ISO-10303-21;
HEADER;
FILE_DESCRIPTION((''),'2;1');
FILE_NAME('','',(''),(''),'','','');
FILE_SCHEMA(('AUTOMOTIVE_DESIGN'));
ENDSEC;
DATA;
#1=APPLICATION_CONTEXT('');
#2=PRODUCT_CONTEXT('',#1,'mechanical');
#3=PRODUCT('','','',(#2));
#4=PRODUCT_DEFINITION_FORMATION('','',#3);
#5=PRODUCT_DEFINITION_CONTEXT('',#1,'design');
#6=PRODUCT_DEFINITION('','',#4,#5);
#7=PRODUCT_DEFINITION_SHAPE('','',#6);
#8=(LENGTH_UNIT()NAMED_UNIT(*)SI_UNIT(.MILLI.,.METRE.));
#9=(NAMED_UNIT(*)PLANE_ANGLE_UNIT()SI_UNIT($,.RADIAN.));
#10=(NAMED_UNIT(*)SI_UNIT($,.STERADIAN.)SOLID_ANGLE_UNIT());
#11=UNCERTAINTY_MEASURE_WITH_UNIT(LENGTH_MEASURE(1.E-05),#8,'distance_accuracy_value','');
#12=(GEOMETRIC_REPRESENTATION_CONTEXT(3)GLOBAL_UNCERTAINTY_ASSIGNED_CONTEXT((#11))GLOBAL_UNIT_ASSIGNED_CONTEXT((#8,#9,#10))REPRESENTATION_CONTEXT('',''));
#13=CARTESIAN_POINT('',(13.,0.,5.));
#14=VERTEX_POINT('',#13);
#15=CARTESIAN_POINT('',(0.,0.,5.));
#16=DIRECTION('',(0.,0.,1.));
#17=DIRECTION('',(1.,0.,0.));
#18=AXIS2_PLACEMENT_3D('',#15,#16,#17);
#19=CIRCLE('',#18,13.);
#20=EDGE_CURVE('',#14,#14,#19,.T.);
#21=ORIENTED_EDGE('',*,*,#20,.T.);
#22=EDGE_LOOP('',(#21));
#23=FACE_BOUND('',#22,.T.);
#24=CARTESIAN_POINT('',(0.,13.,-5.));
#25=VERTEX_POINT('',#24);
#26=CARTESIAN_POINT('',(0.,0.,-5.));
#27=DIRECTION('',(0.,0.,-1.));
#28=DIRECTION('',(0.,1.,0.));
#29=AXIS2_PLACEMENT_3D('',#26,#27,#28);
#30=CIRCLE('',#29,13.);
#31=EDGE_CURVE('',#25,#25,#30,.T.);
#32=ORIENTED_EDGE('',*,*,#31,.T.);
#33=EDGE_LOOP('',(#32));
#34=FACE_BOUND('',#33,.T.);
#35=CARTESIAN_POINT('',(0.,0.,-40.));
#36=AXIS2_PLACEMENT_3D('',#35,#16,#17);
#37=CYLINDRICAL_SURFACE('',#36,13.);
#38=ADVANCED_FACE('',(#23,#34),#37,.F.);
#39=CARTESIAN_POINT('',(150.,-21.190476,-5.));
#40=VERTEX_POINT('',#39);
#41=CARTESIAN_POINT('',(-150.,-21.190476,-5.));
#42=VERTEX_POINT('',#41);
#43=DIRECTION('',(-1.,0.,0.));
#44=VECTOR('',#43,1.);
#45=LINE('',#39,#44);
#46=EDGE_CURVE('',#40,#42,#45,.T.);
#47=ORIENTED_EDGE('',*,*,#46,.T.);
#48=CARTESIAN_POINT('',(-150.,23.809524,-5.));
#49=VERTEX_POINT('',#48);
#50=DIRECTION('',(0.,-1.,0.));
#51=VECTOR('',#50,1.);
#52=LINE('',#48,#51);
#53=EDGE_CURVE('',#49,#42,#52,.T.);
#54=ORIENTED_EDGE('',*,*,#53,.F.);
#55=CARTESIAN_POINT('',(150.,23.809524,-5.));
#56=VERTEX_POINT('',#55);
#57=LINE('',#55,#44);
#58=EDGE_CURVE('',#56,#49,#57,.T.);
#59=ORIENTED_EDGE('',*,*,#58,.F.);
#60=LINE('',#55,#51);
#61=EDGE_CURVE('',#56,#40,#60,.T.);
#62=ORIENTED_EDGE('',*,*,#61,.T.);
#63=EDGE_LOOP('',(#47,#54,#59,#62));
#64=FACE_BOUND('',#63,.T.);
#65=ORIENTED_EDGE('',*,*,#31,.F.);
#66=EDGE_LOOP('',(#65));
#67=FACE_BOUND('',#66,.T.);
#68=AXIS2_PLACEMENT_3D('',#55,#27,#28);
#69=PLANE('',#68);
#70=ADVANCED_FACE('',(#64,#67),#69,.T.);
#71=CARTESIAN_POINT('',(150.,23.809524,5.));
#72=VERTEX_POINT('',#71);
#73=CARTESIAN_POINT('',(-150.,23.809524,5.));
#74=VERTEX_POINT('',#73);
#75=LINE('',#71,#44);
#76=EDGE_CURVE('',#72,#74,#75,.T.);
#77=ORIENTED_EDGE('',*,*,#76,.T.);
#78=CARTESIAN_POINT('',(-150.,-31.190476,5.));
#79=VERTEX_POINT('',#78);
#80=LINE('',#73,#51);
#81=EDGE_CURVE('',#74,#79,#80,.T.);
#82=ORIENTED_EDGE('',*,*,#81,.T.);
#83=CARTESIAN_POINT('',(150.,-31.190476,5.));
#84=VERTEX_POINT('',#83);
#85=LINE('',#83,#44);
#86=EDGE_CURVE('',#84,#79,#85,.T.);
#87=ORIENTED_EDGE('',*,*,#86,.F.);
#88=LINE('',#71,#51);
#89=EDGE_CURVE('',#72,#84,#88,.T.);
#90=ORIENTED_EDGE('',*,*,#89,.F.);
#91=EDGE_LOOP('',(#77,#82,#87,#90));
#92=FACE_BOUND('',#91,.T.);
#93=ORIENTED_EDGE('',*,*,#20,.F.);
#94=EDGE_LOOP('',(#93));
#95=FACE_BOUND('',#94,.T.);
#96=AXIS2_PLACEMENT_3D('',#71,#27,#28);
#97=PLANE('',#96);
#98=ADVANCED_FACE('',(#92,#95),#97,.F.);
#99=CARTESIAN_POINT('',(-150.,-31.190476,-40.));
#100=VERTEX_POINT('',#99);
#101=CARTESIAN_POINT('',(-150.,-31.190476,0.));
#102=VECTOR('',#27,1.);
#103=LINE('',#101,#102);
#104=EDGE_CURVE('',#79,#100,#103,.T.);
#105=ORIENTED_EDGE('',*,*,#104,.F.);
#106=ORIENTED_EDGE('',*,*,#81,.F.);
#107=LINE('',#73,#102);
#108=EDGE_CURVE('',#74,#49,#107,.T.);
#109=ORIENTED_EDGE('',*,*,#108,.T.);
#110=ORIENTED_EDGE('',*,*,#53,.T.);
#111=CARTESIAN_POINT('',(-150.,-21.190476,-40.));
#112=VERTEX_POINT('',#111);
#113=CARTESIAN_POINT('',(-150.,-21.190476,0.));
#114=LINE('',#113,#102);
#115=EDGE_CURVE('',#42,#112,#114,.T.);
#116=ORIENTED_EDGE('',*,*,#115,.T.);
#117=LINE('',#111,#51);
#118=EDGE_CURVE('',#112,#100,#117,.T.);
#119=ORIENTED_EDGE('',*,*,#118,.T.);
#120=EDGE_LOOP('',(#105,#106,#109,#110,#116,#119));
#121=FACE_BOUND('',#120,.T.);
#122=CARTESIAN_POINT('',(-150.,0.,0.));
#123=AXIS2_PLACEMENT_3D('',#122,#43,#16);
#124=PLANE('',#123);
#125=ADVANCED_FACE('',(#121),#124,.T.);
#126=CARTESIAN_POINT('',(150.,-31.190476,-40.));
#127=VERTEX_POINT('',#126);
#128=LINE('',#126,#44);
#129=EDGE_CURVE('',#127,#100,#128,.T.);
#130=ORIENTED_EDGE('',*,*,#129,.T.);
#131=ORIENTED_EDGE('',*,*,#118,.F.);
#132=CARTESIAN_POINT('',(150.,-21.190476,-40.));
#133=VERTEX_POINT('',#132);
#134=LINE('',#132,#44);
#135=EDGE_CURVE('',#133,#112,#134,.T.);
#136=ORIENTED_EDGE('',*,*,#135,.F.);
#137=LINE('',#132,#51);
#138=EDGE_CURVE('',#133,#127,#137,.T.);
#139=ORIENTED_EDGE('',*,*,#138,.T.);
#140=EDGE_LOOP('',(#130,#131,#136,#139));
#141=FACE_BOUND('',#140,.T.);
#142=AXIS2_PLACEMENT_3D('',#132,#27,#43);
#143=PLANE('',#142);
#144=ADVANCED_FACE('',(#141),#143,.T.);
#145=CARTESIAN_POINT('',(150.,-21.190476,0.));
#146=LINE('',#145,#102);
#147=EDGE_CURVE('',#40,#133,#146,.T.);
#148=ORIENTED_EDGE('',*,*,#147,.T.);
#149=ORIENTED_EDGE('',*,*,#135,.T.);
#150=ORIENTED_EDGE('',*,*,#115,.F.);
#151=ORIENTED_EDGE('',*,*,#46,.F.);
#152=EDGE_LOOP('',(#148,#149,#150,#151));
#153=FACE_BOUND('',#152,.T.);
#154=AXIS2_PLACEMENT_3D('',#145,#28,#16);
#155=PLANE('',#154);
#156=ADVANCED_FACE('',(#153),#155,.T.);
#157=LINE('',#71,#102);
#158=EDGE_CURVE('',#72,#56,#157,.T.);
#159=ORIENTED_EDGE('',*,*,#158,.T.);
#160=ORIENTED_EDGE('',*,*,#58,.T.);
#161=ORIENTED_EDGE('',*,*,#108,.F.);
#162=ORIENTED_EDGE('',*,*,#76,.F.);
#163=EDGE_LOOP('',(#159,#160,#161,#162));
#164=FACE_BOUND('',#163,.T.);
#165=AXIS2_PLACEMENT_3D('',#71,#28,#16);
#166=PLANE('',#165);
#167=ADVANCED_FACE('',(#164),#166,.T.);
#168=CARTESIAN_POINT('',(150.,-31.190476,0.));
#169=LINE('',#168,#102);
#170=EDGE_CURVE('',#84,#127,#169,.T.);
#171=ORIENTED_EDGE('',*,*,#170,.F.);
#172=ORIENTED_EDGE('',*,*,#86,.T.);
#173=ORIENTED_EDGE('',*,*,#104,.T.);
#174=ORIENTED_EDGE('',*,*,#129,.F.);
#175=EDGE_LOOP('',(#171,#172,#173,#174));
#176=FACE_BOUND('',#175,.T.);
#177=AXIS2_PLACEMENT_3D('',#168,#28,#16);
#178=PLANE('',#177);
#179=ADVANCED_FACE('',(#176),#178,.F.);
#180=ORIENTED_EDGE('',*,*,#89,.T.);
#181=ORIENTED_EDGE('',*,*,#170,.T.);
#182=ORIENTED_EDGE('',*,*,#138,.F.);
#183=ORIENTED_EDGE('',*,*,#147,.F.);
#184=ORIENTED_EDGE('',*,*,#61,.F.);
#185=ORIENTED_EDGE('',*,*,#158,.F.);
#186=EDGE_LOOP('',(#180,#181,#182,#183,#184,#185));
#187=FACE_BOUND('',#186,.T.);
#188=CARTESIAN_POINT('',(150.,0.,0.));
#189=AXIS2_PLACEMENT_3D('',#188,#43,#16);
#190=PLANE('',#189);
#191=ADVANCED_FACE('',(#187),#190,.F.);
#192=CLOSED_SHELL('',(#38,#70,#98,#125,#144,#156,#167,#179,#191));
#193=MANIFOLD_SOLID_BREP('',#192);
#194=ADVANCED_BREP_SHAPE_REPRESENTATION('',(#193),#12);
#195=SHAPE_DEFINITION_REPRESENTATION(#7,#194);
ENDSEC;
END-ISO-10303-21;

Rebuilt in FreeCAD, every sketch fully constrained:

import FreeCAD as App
import Part
import Sketcher


def add_polygon(sketch, points):
    """Adds a closed chain of lines whose ends are joined by coincident constraints."""
    first, n = sketch.GeometryCount, len(points)
    for a, b in zip(points, points[1:] + points[:1]):
        sketch.addGeometry(Part.LineSegment(App.Vector(*a, 0), App.Vector(*b, 0)), False)
    for i in range(n):
        sketch.addConstraint(Sketcher.Constraint("Coincident", first + i, 2, first + (i + 1) % n, 1))

doc = App.newDocument("Part")
body = doc.addObject("PartDesign::Body", "Body")

sketch1 = body.newObject("Sketcher::SketchObject", "Sketch")
sketch1.AttachmentSupport = (doc.getObject("YZ_Plane"), [""])
sketch1.MapMode = "FlatFace"
add_polygon(sketch1, [(24, 5), (-31, 5), (-31, -40), (-21, -40), (-21, -5), (24, -5)])
sketch1.addConstraint(Sketcher.Constraint("Horizontal", 0))
sketch1.addConstraint(Sketcher.Constraint("Vertical", 1))
sketch1.addConstraint(Sketcher.Constraint("Horizontal", 2))
sketch1.addConstraint(Sketcher.Constraint("Vertical", 3))
sketch1.addConstraint(Sketcher.Constraint("Horizontal", 4))
sketch1.addConstraint(Sketcher.Constraint("Vertical", 5))
sketch1.addConstraint(Sketcher.Constraint("Equal", 4, 1))
sketch1.addConstraint(Sketcher.Constraint("Equal", 2, 5))
sketch1.addConstraint(Sketcher.Constraint("DistanceX", 0, 2, 0, 1, 55.0))
sketch1.addConstraint(Sketcher.Constraint("DistanceX", 2, 1, 2, 2, 10.0))
sketch1.addConstraint(Sketcher.Constraint("DistanceY", -1, 1, 0, 2, 5.0))
sketch1.addConstraint(Sketcher.Constraint("DistanceX", 0, 2, -1, 1, 31.190476))
pad1 = body.newObject("PartDesign::Pad", "Pad")
pad1.Profile = sketch1
pad1.Length = 300
pad1.Midplane = True

sketch2 = body.newObject("Sketcher::SketchObject", "Sketch001")
sketch2.AttachmentSupport = (doc.getObject("XY_Plane"), [""])
sketch2.MapMode = "FlatFace"
sketch2.AttachmentOffset = App.Placement(App.Vector(0, 0, 5), App.Rotation())
sketch2.addGeometry(Part.Circle(App.Vector(0, 0, 0), App.Vector(0, 0, 1), 13), False)
sketch2.addConstraint(Sketcher.Constraint("Coincident", 0, 3, -1, 1))
sketch2.addConstraint(Sketcher.Constraint("Diameter", 0, 26.0))
pocket1 = body.newObject("PartDesign::Pocket", "Pocket")
pocket1.Profile = sketch2
pocket1.Type = "ThroughAll"

doc.recompute()
